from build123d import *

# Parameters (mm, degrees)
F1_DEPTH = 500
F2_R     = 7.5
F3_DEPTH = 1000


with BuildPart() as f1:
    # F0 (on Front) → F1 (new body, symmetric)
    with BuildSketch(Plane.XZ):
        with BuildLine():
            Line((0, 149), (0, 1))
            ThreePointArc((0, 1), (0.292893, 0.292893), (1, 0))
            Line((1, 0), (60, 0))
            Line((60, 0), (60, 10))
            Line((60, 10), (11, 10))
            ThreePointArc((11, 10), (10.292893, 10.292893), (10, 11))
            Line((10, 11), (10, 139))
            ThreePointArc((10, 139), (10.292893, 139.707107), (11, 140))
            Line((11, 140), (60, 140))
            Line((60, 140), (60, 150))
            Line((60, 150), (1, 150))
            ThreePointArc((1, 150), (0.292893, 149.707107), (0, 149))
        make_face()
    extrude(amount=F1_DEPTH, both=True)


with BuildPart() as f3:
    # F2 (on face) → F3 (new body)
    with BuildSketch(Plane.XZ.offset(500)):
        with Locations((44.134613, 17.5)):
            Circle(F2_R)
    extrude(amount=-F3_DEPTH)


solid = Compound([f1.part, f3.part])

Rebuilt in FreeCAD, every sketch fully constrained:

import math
import FreeCAD as App
import Part
import Sketcher

V = App.Vector

doc = App.newDocument("Part")
body = doc.addObject("PartDesign::Body", "Body")

sketch1 = body.newObject("Sketcher::SketchObject", "Sketch")
sketch1.AttachmentSupport = (doc.getObject("XZ_Plane"), [""])
sketch1.MapMode = "FlatFace"
sketch1.addGeometry([
    Part.LineSegment(V(0, 149, 0), V(0, 1, 0)),
    Part.ArcOfCircle(Part.Circle(V(1, 1, 0), V(0, 0, 1), 1), math.radians(180), math.radians(270)),
    Part.LineSegment(V(1, 0, 0), V(60, 0, 0)),
    Part.LineSegment(V(60, 0, 0), V(60, 10, 0)),
    Part.LineSegment(V(60, 10, 0), V(11, 10, 0)),
    Part.ArcOfCircle(Part.Circle(V(11, 11, 0), V(0, 0, 1), 1), math.radians(180), math.radians(270)),
    Part.LineSegment(V(10, 11, 0), V(10, 139, 0)),
    Part.ArcOfCircle(Part.Circle(V(11, 139, 0), V(0, 0, 1), 1), math.radians(90), math.radians(180)),
    Part.LineSegment(V(11, 140, 0), V(60, 140, 0)),
    Part.LineSegment(V(60, 140, 0), V(60, 150, 0)),
    Part.LineSegment(V(60, 150, 0), V(1, 150, 0)),
    Part.ArcOfCircle(Part.Circle(V(1, 149, 0), V(0, 0, 1), 1), math.radians(90), math.radians(180)),
], False)
sketch1.addConstraint([
    Sketcher.Constraint("Tangent", 0, 2, 1, 1),
    Sketcher.Constraint("Tangent", 1, 2, 2, 1),
    Sketcher.Constraint("Coincident", 2, 2, 3, 1),
    Sketcher.Constraint("Coincident", 3, 2, 4, 1),
    Sketcher.Constraint("Tangent", 4, 2, 5, 2),
    Sketcher.Constraint("Tangent", 5, 1, 6, 1),
    Sketcher.Constraint("Tangent", 6, 2, 7, 2),
    Sketcher.Constraint("Tangent", 7, 1, 8, 1),
    Sketcher.Constraint("Coincident", 8, 2, 9, 1),
    Sketcher.Constraint("Coincident", 9, 2, 10, 1),
    Sketcher.Constraint("Tangent", 10, 2, 11, 1),
    Sketcher.Constraint("Tangent", 11, 2, 0, 1),
    Sketcher.Constraint("Vertical", 0),
    Sketcher.Constraint("Horizontal", 2),
    Sketcher.Constraint("Vertical", 3),
    Sketcher.Constraint("Horizontal", 4),
    Sketcher.Constraint("Vertical", 6),
    Sketcher.Constraint("Horizontal", 8),
    Sketcher.Constraint("Vertical", 9),
    Sketcher.Constraint("Horizontal", 10),
    Sketcher.Constraint("Equal", 1, 5),
    Sketcher.Constraint("Equal", 5, 7),
    Sketcher.Constraint("Equal", 7, 11),
    Sketcher.Constraint("PointOnObject", 0, 2, -2),
    Sketcher.Constraint("PointOnObject", 1, 2, -1),
    Sketcher.Constraint("Vertical", 3, 2, 8, 2),
    Sketcher.Constraint("Equal", 3, 9),
    Sketcher.Constraint("Radius", 1, 0.999999),
    Sketcher.Constraint("DistanceX", 2, 1, 2, 2, 59.0),
    Sketcher.Constraint("DistanceX", 4, 2, 4, 1, 49.0),
    Sketcher.Constraint("DistanceY", 0, 2, 0, 1, 148.0),
    Sketcher.Constraint("DistanceY", 3, 1, 3, 2, 10.0),
])
pad1 = body.newObject("PartDesign::Pad", "Pad")
pad1.Profile = sketch1
pad1.Length = 1000
pad1.Midplane = True
body2 = doc.addObject("PartDesign::Body", "Body001")

sketch2 = body2.newObject("Sketcher::SketchObject", "Sketch001")
sketch2.AttachmentSupport = (doc.getObject("XZ_Plane001"), [""])
sketch2.MapMode = "FlatFace"
sketch2.AttachmentOffset = App.Placement(V(0, 0, 500), App.Rotation())
sketch2.addGeometry(Part.Circle(V(44, 18, 0), V(0, 0, 1), 8), False)
sketch2.addConstraint([
    Sketcher.Constraint("Diameter", 0, 15.0),
    Sketcher.Constraint("DistanceY", -1, 1, 0, 3, 17.5),
    Sketcher.Constraint("DistanceX", -1, 1, 0, 3, 44.134613),
])
pad2 = body2.newObject("PartDesign::Pad", "Pad001")
pad2.Profile = sketch2
pad2.Length = 1000
pad2.Reversed = True

doc.recompute()
